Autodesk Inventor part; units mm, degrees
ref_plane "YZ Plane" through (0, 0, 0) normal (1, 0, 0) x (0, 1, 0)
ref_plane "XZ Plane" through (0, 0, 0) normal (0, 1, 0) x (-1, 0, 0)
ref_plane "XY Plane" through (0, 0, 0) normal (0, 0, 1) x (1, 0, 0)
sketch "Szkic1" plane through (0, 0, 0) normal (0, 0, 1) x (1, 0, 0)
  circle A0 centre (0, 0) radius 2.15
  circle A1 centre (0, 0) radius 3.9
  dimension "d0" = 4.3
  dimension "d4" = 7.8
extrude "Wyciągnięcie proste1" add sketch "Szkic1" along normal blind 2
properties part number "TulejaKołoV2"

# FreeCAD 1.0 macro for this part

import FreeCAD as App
import Part
import Sketcher
from FreeCAD import Vector

doc = App.newDocument("Part")
params = doc.addObject("Spreadsheet::Sheet", "Params")
for row, (alias, value) in enumerate([
    ("sketch1_diameter", "7.8 mm"),
    ("sketch1_diameter2", "4.3 mm"),
    ("pad1_length", "2 mm"),
], start=1):
    params.set(f"A{row}", alias)
    params.set(f"B{row}", "=" + value)
    params.setAlias(f"B{row}", alias)

body = doc.addObject("PartDesign::Body", "Body")

# Sketch on XY plane
sketch1 = body.newObject("Sketcher::SketchObject", "Sketch")
sketch1.AttachmentSupport = (doc.getObject("XY_Plane"), [""])
sketch1.MapMode = "FlatFace"
sketch1.addGeometry([
    Part.Circle(Vector(0, 0, 0), Vector(0, 0, 1), 3.9),
    Part.Circle(Vector(0, 0, 0), Vector(0, 0, 1), 2.1),
], False)
sketch1.addConstraint([
    Sketcher.Constraint("Coincident", 0, 3, -1, 1),
    Sketcher.Constraint("Coincident", 1, 3, -1, 1),
    Sketcher.Constraint("Diameter", 0, 7.8),
    Sketcher.Constraint("Diameter", 1, 4.3),
])
sketch1.setExpression("Constraints[2]", "Params.sketch1_diameter")
sketch1.setExpression("Constraints[3]", "Params.sketch1_diameter2")
pad1 = body.newObject("PartDesign::Pad", "Pad")
pad1.Profile = sketch1
pad1.setExpression("Length", "Params.pad1_length")

doc.recompute()
